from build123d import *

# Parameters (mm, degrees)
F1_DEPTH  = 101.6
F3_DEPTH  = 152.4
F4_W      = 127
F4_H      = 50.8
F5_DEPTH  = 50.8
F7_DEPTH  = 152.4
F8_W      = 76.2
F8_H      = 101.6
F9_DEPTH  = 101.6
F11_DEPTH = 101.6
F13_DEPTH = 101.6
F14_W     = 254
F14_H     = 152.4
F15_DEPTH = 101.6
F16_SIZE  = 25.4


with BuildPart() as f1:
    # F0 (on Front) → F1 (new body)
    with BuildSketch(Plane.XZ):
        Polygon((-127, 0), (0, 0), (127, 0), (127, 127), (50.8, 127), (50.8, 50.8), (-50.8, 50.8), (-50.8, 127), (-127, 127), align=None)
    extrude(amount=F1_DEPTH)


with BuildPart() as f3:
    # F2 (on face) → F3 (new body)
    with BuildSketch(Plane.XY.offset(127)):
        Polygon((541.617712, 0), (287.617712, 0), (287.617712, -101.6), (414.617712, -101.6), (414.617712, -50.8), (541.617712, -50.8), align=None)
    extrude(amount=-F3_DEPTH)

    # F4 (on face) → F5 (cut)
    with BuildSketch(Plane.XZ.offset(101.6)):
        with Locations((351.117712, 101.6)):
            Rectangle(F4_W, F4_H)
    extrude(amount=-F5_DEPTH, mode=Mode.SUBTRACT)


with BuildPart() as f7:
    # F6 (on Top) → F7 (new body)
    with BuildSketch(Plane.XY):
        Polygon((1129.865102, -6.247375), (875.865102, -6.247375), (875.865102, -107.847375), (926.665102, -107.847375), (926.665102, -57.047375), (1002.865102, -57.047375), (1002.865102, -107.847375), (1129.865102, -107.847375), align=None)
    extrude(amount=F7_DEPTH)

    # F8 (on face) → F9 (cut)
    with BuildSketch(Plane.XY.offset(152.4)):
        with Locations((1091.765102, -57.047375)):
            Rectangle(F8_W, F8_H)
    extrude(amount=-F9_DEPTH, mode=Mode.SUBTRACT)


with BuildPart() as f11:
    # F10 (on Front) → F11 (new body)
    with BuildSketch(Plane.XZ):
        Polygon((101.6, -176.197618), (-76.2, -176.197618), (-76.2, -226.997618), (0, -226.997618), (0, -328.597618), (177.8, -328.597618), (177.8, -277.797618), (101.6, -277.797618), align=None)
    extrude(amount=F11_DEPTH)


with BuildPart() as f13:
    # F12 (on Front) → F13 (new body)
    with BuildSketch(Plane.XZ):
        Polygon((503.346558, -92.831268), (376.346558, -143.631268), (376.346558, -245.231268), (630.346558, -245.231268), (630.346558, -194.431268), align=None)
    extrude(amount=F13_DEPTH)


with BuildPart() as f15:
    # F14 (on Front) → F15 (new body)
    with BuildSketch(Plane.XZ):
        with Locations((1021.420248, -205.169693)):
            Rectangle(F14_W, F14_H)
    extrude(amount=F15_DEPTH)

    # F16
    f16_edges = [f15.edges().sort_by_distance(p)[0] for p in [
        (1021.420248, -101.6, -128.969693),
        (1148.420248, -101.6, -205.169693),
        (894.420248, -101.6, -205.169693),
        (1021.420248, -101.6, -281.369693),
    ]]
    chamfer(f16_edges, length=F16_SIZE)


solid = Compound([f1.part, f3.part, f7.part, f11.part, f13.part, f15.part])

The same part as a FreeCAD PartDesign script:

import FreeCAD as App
import Part
import Sketcher
Q = App.Units.Quantity


def edges_at(feature, points):
    """Names of the edges that pass closest to the given points."""
    edges = feature.Shape.Edges
    near = lambda p: min(range(len(edges)), key=lambda i: edges[i].distToShape(Part.Vertex(*p))[0])
    return sorted({f"Edge{near(p) + 1}" for p in points})

doc = App.newDocument("Part")
body = doc.addObject("PartDesign::Body", "Body")

sketch1 = body.newObject("Sketcher::SketchObject", "Sketch")
sketch1.AttachmentSupport = (doc.getObject("XZ_Plane"), [""])
sketch1.MapMode = "FlatFace"
sketch1.addGeometry(Part.LineSegment(App.Vector(-127, 0, 0), App.Vector(127, 0, 0)), False)
sketch1.addGeometry(Part.LineSegment(App.Vector(127, 0, 0), App.Vector(127, 127, 0)), False)
sketch1.addGeometry(Part.LineSegment(App.Vector(127, 127, 0), App.Vector(50.8, 127, 0)), False)
sketch1.addGeometry(Part.LineSegment(App.Vector(50.8, 127, 0), App.Vector(50.8, 50.8, 0)), False)
sketch1.addGeometry(Part.LineSegment(App.Vector(50.8, 50.8, 0), App.Vector(-50.8, 50.8, 0)), False)
sketch1.addGeometry(Part.LineSegment(App.Vector(-50.8, 50.8, 0), App.Vector(-50.8, 127, 0)), False)
sketch1.addGeometry(Part.LineSegment(App.Vector(-50.8, 127, 0), App.Vector(-127, 127, 0)), False)
sketch1.addGeometry(Part.LineSegment(App.Vector(-127, 127, 0), App.Vector(-127, 0, 0)), False)
sketch1.addConstraint(Sketcher.Constraint("Coincident", 0, 2, 1, 1))
sketch1.addConstraint(Sketcher.Constraint("Coincident", 1, 2, 2, 1))
sketch1.addConstraint(Sketcher.Constraint("Coincident", 2, 2, 3, 1))
sketch1.addConstraint(Sketcher.Constraint("Coincident", 3, 2, 4, 1))
sketch1.addConstraint(Sketcher.Constraint("Coincident", 4, 2, 5, 1))
sketch1.addConstraint(Sketcher.Constraint("Coincident", 5, 2, 6, 1))
sketch1.addConstraint(Sketcher.Constraint("Coincident", 6, 2, 7, 1))
sketch1.addConstraint(Sketcher.Constraint("Coincident", 7, 2, 0, 1))
sketch1.addConstraint(Sketcher.Constraint("Horizontal", 0))
sketch1.addConstraint(Sketcher.Constraint("Vertical", 1))
sketch1.addConstraint(Sketcher.Constraint("Horizontal", 2))
sketch1.addConstraint(Sketcher.Constraint("Vertical", 3))
sketch1.addConstraint(Sketcher.Constraint("Horizontal", 4))
sketch1.addConstraint(Sketcher.Constraint("Vertical", 5))
sketch1.addConstraint(Sketcher.Constraint("Horizontal", 6))
sketch1.addConstraint(Sketcher.Constraint("Vertical", 7))
sketch1.addConstraint(Sketcher.Constraint("Symmetric", 0, 2, 7, 2, -1, 1))
sketch1.addConstraint(Sketcher.Constraint("Symmetric", 2, 2, 5, 2, -2))
sketch1.addConstraint(Sketcher.Constraint("Equal", 6, 3))
sketch1.addConstraint(Sketcher.Constraint("DistanceX", 0, 1, 0, 2, Q("10 in")))
sketch1.addConstraint(Sketcher.Constraint("DistanceX", 2, 2, 2, 1, Q("3 in")))
sketch1.addConstraint(Sketcher.Constraint("DistanceY", 1, 1, 1, 2, Q("5 in")))
pad1 = body.newObject("PartDesign::Pad", "Pad")
pad1.Profile = sketch1
pad1.Length = Q("4 in")
body2 = doc.addObject("PartDesign::Body", "Body001")

sketch2 = body2.newObject("Sketcher::SketchObject", "Sketch001")
sketch2.AttachmentSupport = (doc.getObject("XY_Plane001"), [""])
sketch2.MapMode = "FlatFace"
sketch2.AttachmentOffset = App.Placement(App.Vector(0, 0, 5 * 25.4), App.Rotation())
sketch2.addGeometry(Part.LineSegment(App.Vector(541.617712, 0, 0), App.Vector(287.617712, 0, 0)), False)
sketch2.addGeometry(Part.LineSegment(App.Vector(287.617712, 0, 0), App.Vector(287.617712, -101.6, 0)), False)
sketch2.addGeometry(Part.LineSegment(App.Vector(287.617712, -101.6, 0), App.Vector(414.617712, -101.6, 0)), False)
sketch2.addGeometry(Part.LineSegment(App.Vector(414.617712, -101.6, 0), App.Vector(414.617712, -50.8, 0)), False)
sketch2.addGeometry(Part.LineSegment(App.Vector(414.617712, -50.8, 0), App.Vector(541.617712, -50.8, 0)), False)
sketch2.addGeometry(Part.LineSegment(App.Vector(541.617712, -50.8, 0), App.Vector(541.617712, 0, 0)), False)
sketch2.addConstraint(Sketcher.Constraint("Coincident", 0, 2, 1, 1))
sketch2.addConstraint(Sketcher.Constraint("Coincident", 1, 2, 2, 1))
sketch2.addConstraint(Sketcher.Constraint("Coincident", 2, 2, 3, 1))
sketch2.addConstraint(Sketcher.Constraint("Coincident", 3, 2, 4, 1))
sketch2.addConstraint(Sketcher.Constraint("Coincident", 4, 2, 5, 1))
sketch2.addConstraint(Sketcher.Constraint("Coincident", 5, 2, 0, 1))
sketch2.addConstraint(Sketcher.Constraint("Horizontal", 0))
sketch2.addConstraint(Sketcher.Constraint("Vertical", 1))
sketch2.addConstraint(Sketcher.Constraint("Horizontal", 2))
sketch2.addConstraint(Sketcher.Constraint("Vertical", 3))
sketch2.addConstraint(Sketcher.Constraint("Horizontal", 4))
sketch2.addConstraint(Sketcher.Constraint("Vertical", 5))
sketch2.addConstraint(Sketcher.Constraint("PointOnObject", 0, 2, -1))
sketch2.addConstraint(Sketcher.Constraint("Equal", 2, 4))
sketch2.addConstraint(Sketcher.Constraint("Equal", 3, 5))
sketch2.addConstraint(Sketcher.Constraint("DistanceX", 0, 2, 0, 1, Q("10 in")))
sketch2.addConstraint(Sketcher.Constraint("DistanceY", 1, 2, 1, 1, Q("4 in")))
sketch2.addConstraint(Sketcher.Constraint("DistanceX", -1, 1, 0, 2, Q("287.617712 mm")))
pad2 = body2.newObject("PartDesign::Pad", "Pad001")
pad2.Profile = sketch2
pad2.Length = Q("6 in")
pad2.Reversed = True

sketch3 = body2.newObject("Sketcher::SketchObject", "Sketch002")
sketch3.AttachmentSupport = (doc.getObject("XZ_Plane001"), [""])
sketch3.MapMode = "FlatFace"
sketch3.AttachmentOffset = App.Placement(App.Vector(0, 0, 4 * 25.4), App.Rotation())
sketch3.addGeometry(Part.LineSegment(App.Vector(287.617712, 127, 0), App.Vector(287.617712, 76.2, 0)), False)
sketch3.addGeometry(Part.LineSegment(App.Vector(287.617712, 76.2, 0), App.Vector(414.617712, 76.2, 0)), False)
sketch3.addGeometry(Part.LineSegment(App.Vector(414.617712, 76.2, 0), App.Vector(414.617712, 127, 0)), False)
sketch3.addGeometry(Part.LineSegment(App.Vector(414.617712, 127, 0), App.Vector(287.617712, 127, 0)), False)
sketch3.addConstraint(Sketcher.Constraint("Coincident", 0, 2, 1, 1))
sketch3.addConstraint(Sketcher.Constraint("Coincident", 1, 2, 2, 1))
sketch3.addConstraint(Sketcher.Constraint("Coincident", 2, 2, 3, 1))
sketch3.addConstraint(Sketcher.Constraint("Coincident", 3, 2, 0, 1))
sketch3.addConstraint(Sketcher.Constraint("Vertical", 0))
sketch3.addConstraint(Sketcher.Constraint("Horizontal", 1))
sketch3.addConstraint(Sketcher.Constraint("Vertical", 2))
sketch3.addConstraint(Sketcher.Constraint("Horizontal", 3))
sketch3.addConstraint(Sketcher.Constraint("DistanceX", 1, 1, 1, 2, Q("5 in")))
sketch3.addConstraint(Sketcher.Constraint("DistanceY", 0, 2, 0, 1, Q("2 in")))
sketch3.addConstraint(Sketcher.Constraint("DistanceY", -1, 1, 0, 2, Q("3 in")))
sketch3.addConstraint(Sketcher.Constraint("DistanceX", -1, 1, 0, 2, Q("287.617712 mm")))
pocket1 = body2.newObject("PartDesign::Pocket", "Pocket")
pocket1.Profile = sketch3
pocket1.Length = Q("2 in")
body3 = doc.addObject("PartDesign::Body", "Body002")

sketch4 = body3.newObject("Sketcher::SketchObject", "Sketch003")
sketch4.AttachmentSupport = (doc.getObject("XY_Plane002"), [""])
sketch4.MapMode = "FlatFace"
sketch4.addGeometry(Part.LineSegment(App.Vector(1129.865102, -6.247375, 0), App.Vector(875.865102, -6.247375, 0)), False)
sketch4.addGeometry(Part.LineSegment(App.Vector(875.865102, -6.247375, 0), App.Vector(875.865102, -107.847375, 0)), False)
sketch4.addGeometry(Part.LineSegment(App.Vector(875.865102, -107.847375, 0), App.Vector(926.665102, -107.847375, 0)), False)
sketch4.addGeometry(Part.LineSegment(App.Vector(926.665102, -107.847375, 0), App.Vector(926.665102, -57.047375, 0)), False)
sketch4.addGeometry(Part.LineSegment(App.Vector(926.665102, -57.047375, 0), App.Vector(1002.865102, -57.047375, 0)), False)
sketch4.addGeometry(Part.LineSegment(App.Vector(1002.865102, -57.047375, 0), App.Vector(1002.865102, -107.847375, 0)), False)
sketch4.addGeometry(Part.LineSegment(App.Vector(1002.865102, -107.847375, 0), App.Vector(1129.865102, -107.847375, 0)), False)
sketch4.addGeometry(Part.LineSegment(App.Vector(1129.865102, -107.847375, 0), App.Vector(1129.865102, -6.247375, 0)), False)
sketch4.addConstraint(Sketcher.Constraint("Coincident", 0, 2, 1, 1))
sketch4.addConstraint(Sketcher.Constraint("Coincident", 1, 2, 2, 1))
sketch4.addConstraint(Sketcher.Constraint("Coincident", 2, 2, 3, 1))
sketch4.addConstraint(Sketcher.Constraint("Coincident", 3, 2, 4, 1))
sketch4.addConstraint(Sketcher.Constraint("Coincident", 4, 2, 5, 1))
sketch4.addConstraint(Sketcher.Constraint("Coincident", 5, 2, 6, 1))
sketch4.addConstraint(Sketcher.Constraint("Coincident", 6, 2, 7, 1))
sketch4.addConstraint(Sketcher.Constraint("Coincident", 7, 2, 0, 1))
sketch4.addConstraint(Sketcher.Constraint("Horizontal", 0))
sketch4.addConstraint(Sketcher.Constraint("Vertical", 1))
sketch4.addConstraint(Sketcher.Constraint("Horizontal", 2))
sketch4.addConstraint(Sketcher.Constraint("Vertical", 3))
sketch4.addConstraint(Sketcher.Constraint("Horizontal", 4))
sketch4.addConstraint(Sketcher.Constraint("Vertical", 5))
sketch4.addConstraint(Sketcher.Constraint("Horizontal", 6))
sketch4.addConstraint(Sketcher.Constraint("Vertical", 7))
sketch4.addConstraint(Sketcher.Constraint("Horizontal", 2, 2, 5, 2))
sketch4.addConstraint(Sketcher.Constraint("Equal", 2, 3))
sketch4.addConstraint(Sketcher.Constraint("DistanceX", 0, 2, 0, 1, Q("10 in")))
sketch4.addConstraint(Sketcher.Constraint("DistanceX", 2, 1, 2, 2, Q("2 in")))
sketch4.addConstraint(Sketcher.Constraint("DistanceX", 4, 1, 4, 2, Q("3 in")))
sketch4.addConstraint(Sketcher.Constraint("DistanceY", 1, 2, 1, 1, Q("4 in")))
sketch4.addConstraint(Sketcher.Constraint("DistanceX", -1, 1, 0, 2, Q("875.865102 mm")))
sketch4.addConstraint(Sketcher.Constraint("DistanceY", 0, 2, -1, 1, Q("6.247375 mm")))
pad3 = body3.newObject("PartDesign::Pad", "Pad002")
pad3.Profile = sketch4
pad3.Length = Q("6 in")

sketch5 = body3.newObject("Sketcher::SketchObject", "Sketch004")
sketch5.AttachmentSupport = (doc.getObject("XY_Plane002"), [""])
sketch5.MapMode = "FlatFace"
sketch5.AttachmentOffset = App.Placement(App.Vector(0, 0, 6 * 25.4), App.Rotation())
sketch5.addGeometry(Part.LineSegment(App.Vector(1053.665102, -6.247375, 0), App.Vector(1053.665102, -107.847375, 0)), False)
sketch5.addGeometry(Part.LineSegment(App.Vector(1053.665102, -107.847375, 0), App.Vector(1129.865102, -107.847375, 0)), False)
sketch5.addGeometry(Part.LineSegment(App.Vector(1129.865102, -107.847375, 0), App.Vector(1129.865102, -6.247375, 0)), False)
sketch5.addGeometry(Part.LineSegment(App.Vector(1129.865102, -6.247375, 0), App.Vector(1053.665102, -6.247375, 0)), False)
sketch5.addConstraint(Sketcher.Constraint("Coincident", 0, 2, 1, 1))
sketch5.addConstraint(Sketcher.Constraint("Coincident", 1, 2, 2, 1))
sketch5.addConstraint(Sketcher.Constraint("Coincident", 2, 2, 3, 1))
sketch5.addConstraint(Sketcher.Constraint("Coincident", 3, 2, 0, 1))
sketch5.addConstraint(Sketcher.Constraint("Vertical", 0))
sketch5.addConstraint(Sketcher.Constraint("Horizontal", 1))
sketch5.addConstraint(Sketcher.Constraint("Vertical", 2))
sketch5.addConstraint(Sketcher.Constraint("Horizontal", 3))
sketch5.addConstraint(Sketcher.Constraint("DistanceX", 1, 1, 1, 2, Q("3 in")))
sketch5.addConstraint(Sketcher.Constraint("DistanceY", 0, 2, 0, 1, Q("4 in")))
sketch5.addConstraint(Sketcher.Constraint("DistanceX", -1, 1, 0, 2, Q("1053.665102 mm")))
sketch5.addConstraint(Sketcher.Constraint("DistanceY", 0, 2, -1, 1, Q("107.847375 mm")))
pocket2 = body3.newObject("PartDesign::Pocket", "Pocket001")
pocket2.Profile = sketch5
pocket2.Length = Q("4 in")
body4 = doc.addObject("PartDesign::Body", "Body003")

sketch6 = body4.newObject("Sketcher::SketchObject", "Sketch005")
sketch6.AttachmentSupport = (doc.getObject("XZ_Plane003"), [""])
sketch6.MapMode = "FlatFace"
sketch6.addGeometry(Part.LineSegment(App.Vector(101.6, -176.197618, 0), App.Vector(-76.2, -176.197618, 0)), False)
sketch6.addGeometry(Part.LineSegment(App.Vector(-76.2, -176.197618, 0), App.Vector(-76.2, -226.997618, 0)), False)
sketch6.addGeometry(Part.LineSegment(App.Vector(-76.2, -226.997618, 0), App.Vector(0, -226.997618, 0)), False)
sketch6.addGeometry(Part.LineSegment(App.Vector(0, -226.997618, 0), App.Vector(0, -328.597618, 0)), False)
sketch6.addGeometry(Part.LineSegment(App.Vector(0, -328.597618, 0), App.Vector(177.8, -328.597618, 0)), False)
sketch6.addGeometry(Part.LineSegment(App.Vector(177.8, -328.597618, 0), App.Vector(177.8, -277.797618, 0)), False)
sketch6.addGeometry(Part.LineSegment(App.Vector(177.8, -277.797618, 0), App.Vector(101.6, -277.797618, 0)), False)
sketch6.addGeometry(Part.LineSegment(App.Vector(101.6, -277.797618, 0), App.Vector(101.6, -176.197618, 0)), False)
sketch6.addConstraint(Sketcher.Constraint("Coincident", 0, 2, 1, 1))
sketch6.addConstraint(Sketcher.Constraint("Coincident", 1, 2, 2, 1))
sketch6.addConstraint(Sketcher.Constraint("Coincident", 2, 2, 3, 1))
sketch6.addConstraint(Sketcher.Constraint("Coincident", 3, 2, 4, 1))
sketch6.addConstraint(Sketcher.Constraint("Coincident", 4, 2, 5, 1))
sketch6.addConstraint(Sketcher.Constraint("Coincident", 5, 2, 6, 1))
sketch6.addConstraint(Sketcher.Constraint("Coincident", 6, 2, 7, 1))
sketch6.addConstraint(Sketcher.Constraint("Coincident", 7, 2, 0, 1))
sketch6.addConstraint(Sketcher.Constraint("Horizontal", 0))
sketch6.addConstraint(Sketcher.Constraint("Vertical", 1))
sketch6.addConstraint(Sketcher.Constraint("Horizontal", 2))
sketch6.addConstraint(Sketcher.Constraint("Vertical", 3))
sketch6.addConstraint(Sketcher.Constraint("Horizontal", 4))
sketch6.addConstraint(Sketcher.Constraint("Vertical", 5))
sketch6.addConstraint(Sketcher.Constraint("Horizontal", 6))
sketch6.addConstraint(Sketcher.Constraint("Vertical", 7))
sketch6.addConstraint(Sketcher.Constraint("PointOnObject", 2, 2, -2))
sketch6.addConstraint(Sketcher.Constraint("Equal", 0, 4))
sketch6.addConstraint(Sketcher.Constraint("Equal", 1, 5))
sketch6.addConstraint(Sketcher.Constraint("DistanceX", 0, 2, 0, 1, Q("7 in")))
sketch6.addConstraint(Sketcher.Constraint("DistanceX", 2, 1, 2, 2, Q("3 in")))
sketch6.addConstraint(Sketcher.Constraint("DistanceY", 1, 2, 1, 1, Q("2 in")))
sketch6.addConstraint(Sketcher.Constraint("DistanceY", 3, 2, 3, 1, Q("4 in")))
sketch6.addConstraint(Sketcher.Constraint("DistanceY", 0, 2, -1, 1, Q("176.197618 mm")))
pad4 = body4.newObject("PartDesign::Pad", "Pad003")
pad4.Profile = sketch6
pad4.Length = Q("4 in")
body5 = doc.addObject("PartDesign::Body", "Body004")

sketch7 = body5.newObject("Sketcher::SketchObject", "Sketch006")
sketch7.AttachmentSupport = (doc.getObject("XZ_Plane004"), [""])
sketch7.MapMode = "FlatFace"
sketch7.addGeometry(Part.LineSegment(App.Vector(503.346558, -92.831268, 0), App.Vector(376.346558, -143.631268, 0)), False)
sketch7.addGeometry(Part.LineSegment(App.Vector(376.346558, -143.631268, 0), App.Vector(376.346558, -245.231268, 0)), False)
sketch7.addGeometry(Part.LineSegment(App.Vector(376.346558, -245.231268, 0), App.Vector(630.346558, -245.231268, 0)), False)
sketch7.addGeometry(Part.LineSegment(App.Vector(630.346558, -245.231268, 0), App.Vector(630.346558, -194.431268, 0)), False)
sketch7.addGeometry(Part.LineSegment(App.Vector(630.346558, -194.431268, 0), App.Vector(503.346558, -92.831268, 0)), False)
sketch7.addConstraint(Sketcher.Constraint("Coincident", 0, 2, 1, 1))
sketch7.addConstraint(Sketcher.Constraint("Coincident", 1, 2, 2, 1))
sketch7.addConstraint(Sketcher.Constraint("Coincident", 2, 2, 3, 1))
sketch7.addConstraint(Sketcher.Constraint("Coincident", 3, 2, 4, 1))
sketch7.addConstraint(Sketcher.Constraint("Coincident", 4, 2, 0, 1))
sketch7.addConstraint(Sketcher.Constraint("Vertical", 1))
sketch7.addConstraint(Sketcher.Constraint("Horizontal", 2))
sketch7.addConstraint(Sketcher.Constraint("Vertical", 3))
sketch7.addConstraint(Sketcher.Constraint("DistanceX", 2, 1, 2, 2, Q("10 in")))
sketch7.addConstraint(Sketcher.Constraint("DistanceY", 1, 2, 1, 1, Q("4 in")))
sketch7.addConstraint(Sketcher.Constraint("DistanceY", 3, 1, 3, 2, Q("2 in")))
sketch7.addConstraint(Sketcher.Constraint("DistanceX", 0, 2, 4, 2, Q("5 in")))
sketch7.addConstraint(Sketcher.Constraint("DistanceY", 0, 2, 4, 2, Q("2 in")))
sketch7.addConstraint(Sketcher.Constraint("DistanceX", -1, 1, 0, 2, Q("376.346558 mm")))
sketch7.addConstraint(Sketcher.Constraint("DistanceY", 0, 2, -1, 1, Q("143.631268 mm")))
pad5 = body5.newObject("PartDesign::Pad", "Pad004")
pad5.Profile = sketch7
pad5.Length = Q("4 in")
body6 = doc.addObject("PartDesign::Body", "Body005")

sketch8 = body6.newObject("Sketcher::SketchObject", "Sketch007")
sketch8.AttachmentSupport = (doc.getObject("XZ_Plane005"), [""])
sketch8.MapMode = "FlatFace"
sketch8.addGeometry(Part.LineSegment(App.Vector(894.420248, -128.969693, 0), App.Vector(894.420248, -281.369693, 0)), False)
sketch8.addGeometry(Part.LineSegment(App.Vector(894.420248, -281.369693, 0), App.Vector(1148.420248, -281.369693, 0)), False)
sketch8.addGeometry(Part.LineSegment(App.Vector(1148.420248, -281.369693, 0), App.Vector(1148.420248, -128.969693, 0)), False)
sketch8.addGeometry(Part.LineSegment(App.Vector(1148.420248, -128.969693, 0), App.Vector(894.420248, -128.969693, 0)), False)
sketch8.addConstraint(Sketcher.Constraint("Coincident", 0, 2, 1, 1))
sketch8.addConstraint(Sketcher.Constraint("Coincident", 1, 2, 2, 1))
sketch8.addConstraint(Sketcher.Constraint("Coincident", 2, 2, 3, 1))
sketch8.addConstraint(Sketcher.Constraint("Coincident", 3, 2, 0, 1))
sketch8.addConstraint(Sketcher.Constraint("Vertical", 0))
sketch8.addConstraint(Sketcher.Constraint("Horizontal", 1))
sketch8.addConstraint(Sketcher.Constraint("Vertical", 2))
sketch8.addConstraint(Sketcher.Constraint("Horizontal", 3))
sketch8.addConstraint(Sketcher.Constraint("DistanceX", 1, 1, 1, 2, Q("10 in")))
sketch8.addConstraint(Sketcher.Constraint("DistanceY", 0, 2, 0, 1, Q("6 in")))
sketch8.addConstraint(Sketcher.Constraint("DistanceX", -1, 1, 0, 2, Q("894.420248 mm")))
sketch8.addConstraint(Sketcher.Constraint("DistanceY", 0, 2, -1, 1, Q("281.369693 mm")))
pad6 = body6.newObject("PartDesign::Pad", "Pad005")
pad6.Profile = sketch8
pad6.Length = Q("4 in")
doc.recompute()

chamfer = body6.newObject("PartDesign::Chamfer", "Chamfer")
chamfer.Base = (pad6, edges_at(pad6, [
    (1021.42, -101.6, -128.97),
    (1148.42, -101.6, -205.17),
    (894.42, -101.6, -205.17),
    (1021.42, -101.6, -281.37),
]))
chamfer.Size = Q("1 in")

doc.recompute()
